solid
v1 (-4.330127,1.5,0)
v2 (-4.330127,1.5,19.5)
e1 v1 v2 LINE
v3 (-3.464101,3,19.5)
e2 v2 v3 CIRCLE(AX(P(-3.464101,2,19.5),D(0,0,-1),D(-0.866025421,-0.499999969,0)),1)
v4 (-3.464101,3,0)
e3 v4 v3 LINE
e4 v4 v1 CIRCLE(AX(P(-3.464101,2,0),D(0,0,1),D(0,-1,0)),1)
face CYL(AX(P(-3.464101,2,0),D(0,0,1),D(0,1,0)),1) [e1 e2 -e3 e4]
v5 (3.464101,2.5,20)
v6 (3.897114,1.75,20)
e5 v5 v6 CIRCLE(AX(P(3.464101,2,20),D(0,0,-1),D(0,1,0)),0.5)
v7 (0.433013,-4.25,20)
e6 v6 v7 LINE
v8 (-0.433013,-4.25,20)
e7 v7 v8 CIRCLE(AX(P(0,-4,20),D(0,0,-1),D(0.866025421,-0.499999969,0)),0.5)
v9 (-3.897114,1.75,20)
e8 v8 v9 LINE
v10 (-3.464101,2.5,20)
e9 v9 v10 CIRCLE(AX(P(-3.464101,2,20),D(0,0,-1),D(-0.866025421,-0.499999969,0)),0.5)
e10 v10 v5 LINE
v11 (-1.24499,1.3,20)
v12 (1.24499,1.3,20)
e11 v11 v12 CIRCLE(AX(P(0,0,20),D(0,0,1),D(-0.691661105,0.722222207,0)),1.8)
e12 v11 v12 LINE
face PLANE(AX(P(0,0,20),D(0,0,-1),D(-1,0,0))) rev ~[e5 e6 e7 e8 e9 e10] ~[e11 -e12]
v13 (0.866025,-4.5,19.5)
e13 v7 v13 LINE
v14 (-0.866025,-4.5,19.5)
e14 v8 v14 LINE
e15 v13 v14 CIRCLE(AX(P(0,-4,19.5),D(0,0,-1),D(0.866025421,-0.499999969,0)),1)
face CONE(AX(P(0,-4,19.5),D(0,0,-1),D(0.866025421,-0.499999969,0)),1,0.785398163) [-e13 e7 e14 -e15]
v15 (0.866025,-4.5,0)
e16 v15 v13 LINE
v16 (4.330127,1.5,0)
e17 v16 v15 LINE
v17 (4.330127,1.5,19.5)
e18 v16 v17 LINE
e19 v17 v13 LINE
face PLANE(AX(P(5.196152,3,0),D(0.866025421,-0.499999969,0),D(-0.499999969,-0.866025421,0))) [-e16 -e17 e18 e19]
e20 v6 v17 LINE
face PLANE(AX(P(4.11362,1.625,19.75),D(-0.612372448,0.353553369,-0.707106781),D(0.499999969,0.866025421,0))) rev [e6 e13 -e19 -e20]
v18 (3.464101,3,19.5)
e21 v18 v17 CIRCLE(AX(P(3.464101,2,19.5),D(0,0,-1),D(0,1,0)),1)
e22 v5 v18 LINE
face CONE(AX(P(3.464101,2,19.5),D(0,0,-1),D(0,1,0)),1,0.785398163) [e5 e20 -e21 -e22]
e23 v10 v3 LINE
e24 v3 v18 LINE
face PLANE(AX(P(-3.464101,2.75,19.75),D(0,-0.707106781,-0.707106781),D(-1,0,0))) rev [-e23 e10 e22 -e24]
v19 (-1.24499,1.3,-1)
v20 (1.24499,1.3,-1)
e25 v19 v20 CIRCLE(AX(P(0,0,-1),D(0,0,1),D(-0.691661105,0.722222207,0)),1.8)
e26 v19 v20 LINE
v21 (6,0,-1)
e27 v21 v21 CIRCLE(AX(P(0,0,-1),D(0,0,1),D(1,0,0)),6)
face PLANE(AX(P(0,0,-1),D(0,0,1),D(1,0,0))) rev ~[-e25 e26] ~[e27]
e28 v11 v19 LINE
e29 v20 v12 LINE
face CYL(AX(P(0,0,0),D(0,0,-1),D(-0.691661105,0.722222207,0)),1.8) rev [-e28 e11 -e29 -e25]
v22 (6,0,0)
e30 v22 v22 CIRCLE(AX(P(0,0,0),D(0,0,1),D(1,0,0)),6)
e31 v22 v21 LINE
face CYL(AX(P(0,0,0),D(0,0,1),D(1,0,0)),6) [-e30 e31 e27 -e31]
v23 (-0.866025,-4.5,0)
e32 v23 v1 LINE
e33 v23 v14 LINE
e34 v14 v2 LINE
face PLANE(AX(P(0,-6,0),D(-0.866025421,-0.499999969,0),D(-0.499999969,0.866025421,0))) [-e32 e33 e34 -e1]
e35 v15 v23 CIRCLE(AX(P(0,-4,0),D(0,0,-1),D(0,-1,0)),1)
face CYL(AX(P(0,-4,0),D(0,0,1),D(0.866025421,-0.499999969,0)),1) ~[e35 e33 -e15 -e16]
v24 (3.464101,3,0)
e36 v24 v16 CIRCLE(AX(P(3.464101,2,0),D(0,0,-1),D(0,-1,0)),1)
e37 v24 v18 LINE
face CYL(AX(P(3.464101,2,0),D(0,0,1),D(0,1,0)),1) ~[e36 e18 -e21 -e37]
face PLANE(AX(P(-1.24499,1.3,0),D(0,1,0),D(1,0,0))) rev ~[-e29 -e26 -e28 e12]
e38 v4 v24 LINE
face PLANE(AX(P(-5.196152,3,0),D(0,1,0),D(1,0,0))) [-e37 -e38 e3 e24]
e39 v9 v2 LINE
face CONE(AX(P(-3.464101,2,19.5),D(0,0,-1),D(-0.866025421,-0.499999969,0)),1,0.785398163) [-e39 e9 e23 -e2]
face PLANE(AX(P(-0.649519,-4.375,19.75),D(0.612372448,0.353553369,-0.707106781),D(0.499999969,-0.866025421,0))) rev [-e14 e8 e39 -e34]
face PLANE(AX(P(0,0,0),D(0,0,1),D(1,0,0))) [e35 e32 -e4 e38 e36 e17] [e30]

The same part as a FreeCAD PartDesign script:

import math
import FreeCAD as App
import Part
import Sketcher
Q = App.Units.Quantity


def edges_at(feature, points):
    """Names of the edges that pass closest to the given points."""
    edges = feature.Shape.Edges
    near = lambda p: min(range(len(edges)), key=lambda i: edges[i].distToShape(Part.Vertex(*p))[0])
    return sorted({f"Edge{near(p) + 1}" for p in points})

doc = App.newDocument("Part")
body = doc.addObject("PartDesign::Body", "Body")

# Sketch on XY plane
sketch1 = body.newObject("Sketcher::SketchObject", "Sketch")
sketch1.AttachmentSupport = (doc.getObject("XY_Plane"), [""])
sketch1.MapMode = "FlatFace"
sketch1.addGeometry([
    Part.Circle(App.Vector(0, 0, 0), App.Vector(0, 0, 1), 6),
    Part.ArcOfCircle(Part.Circle(App.Vector(0, 0, 0), App.Vector(0, 0, 1), 1.8), math.radians(133.761744), math.radians(406.238256)),
    Part.LineSegment(App.Vector(-1.24499, 1.3, 0), App.Vector(1.24499, 1.3, 0)),
], False)
sketch1.addConstraint([
    Sketcher.Constraint("Coincident", 1, 1, 2, 1),
    Sketcher.Constraint("Coincident", 2, 2, 1, 2),
    Sketcher.Constraint("Horizontal", 2),
    Sketcher.Constraint("Coincident", 0, 3, -1, 1),
    Sketcher.Constraint("Coincident", 1, 3, -1, 1),
    Sketcher.Constraint("Diameter", 0, 12.0),
    Sketcher.Constraint("Radius", 1, 1.8),
    Sketcher.Constraint("DistanceY", -1, 1, 1, 1, 1.3),
])
pad1 = body.newObject("PartDesign::Pad", "Pad")
pad1.Profile = sketch1
pad1.Length = 1
pad1.Reversed = True

# Sketch on XY plane
sketch2 = body.newObject("Sketcher::SketchObject", "Sketch001")
sketch2.AttachmentSupport = (doc.getObject("XY_Plane"), [""])
sketch2.MapMode = "FlatFace"
sketch2.addGeometry([
    Part.LineSegment(App.Vector(5.196152, 3, 0), App.Vector(-5.196152, 3, 0)),  # 0
    Part.LineSegment(App.Vector(-5.196152, 3, 0), App.Vector(0, -6, 0)),  # 1
    Part.LineSegment(App.Vector(0, -6, 0), App.Vector(5.196152, 3, 0)),  # 2
    Part.LineSegment(App.Vector(-1.24499, 1.3, 0), App.Vector(1.24499, 1.3, 0)),  # 3
    Part.ArcOfCircle(Part.Circle(App.Vector(0, 0, 0), App.Vector(0, 0, 1), 1.8), math.radians(133.761744), math.radians(406.238256)),  # 4
], False)
sketch2.addConstraint([
    Sketcher.Constraint("Coincident", 0, 2, 1, 1),
    Sketcher.Constraint("Coincident", 1, 2, 2, 1),
    Sketcher.Constraint("Coincident", 2, 2, 0, 1),
    Sketcher.Constraint("Coincident", 3, 1, 4, 1),
    Sketcher.Constraint("Coincident", 4, 2, 3, 2),
    Sketcher.Constraint("Horizontal", 0),
    Sketcher.Constraint("Horizontal", 3),
    Sketcher.Constraint("Coincident", 4, 3, -1, 1),
    Sketcher.Constraint("PointOnObject", 1, 2, -2),
    Sketcher.Constraint("Equal", 1, 2),
    Sketcher.Constraint("Radius", 4, 1.8),
    Sketcher.Constraint("Angle", 1, Q("-60.000002 deg")),
    Sketcher.Constraint("DistanceY", -1, 1, 0, 2, 3.0),
    Sketcher.Constraint("DistanceY", 1, 2, -1, 1, 6.0),
    Sketcher.Constraint("DistanceY", -1, 1, 3, 1, 1.3),
])
pad2 = body.newObject("PartDesign::Pad", "Pad001")
pad2.Profile = sketch2
pad2.Length = 20
doc.recompute()

fillet = body.newObject("PartDesign::Fillet", "Fillet")
fillet.Base = (pad2, edges_at(pad2, [(0, -6, 10), (5.196, 3, 10), (-5.196, 3, 10)]))
fillet.Radius = 1
doc.recompute()

chamfer = body.newObject("PartDesign::Chamfer", "Chamfer")
chamfer.Base = (fillet, edges_at(fillet, [(-2.598, -1.5, 20)]))
chamfer.Size = 0.5

doc.recompute()
